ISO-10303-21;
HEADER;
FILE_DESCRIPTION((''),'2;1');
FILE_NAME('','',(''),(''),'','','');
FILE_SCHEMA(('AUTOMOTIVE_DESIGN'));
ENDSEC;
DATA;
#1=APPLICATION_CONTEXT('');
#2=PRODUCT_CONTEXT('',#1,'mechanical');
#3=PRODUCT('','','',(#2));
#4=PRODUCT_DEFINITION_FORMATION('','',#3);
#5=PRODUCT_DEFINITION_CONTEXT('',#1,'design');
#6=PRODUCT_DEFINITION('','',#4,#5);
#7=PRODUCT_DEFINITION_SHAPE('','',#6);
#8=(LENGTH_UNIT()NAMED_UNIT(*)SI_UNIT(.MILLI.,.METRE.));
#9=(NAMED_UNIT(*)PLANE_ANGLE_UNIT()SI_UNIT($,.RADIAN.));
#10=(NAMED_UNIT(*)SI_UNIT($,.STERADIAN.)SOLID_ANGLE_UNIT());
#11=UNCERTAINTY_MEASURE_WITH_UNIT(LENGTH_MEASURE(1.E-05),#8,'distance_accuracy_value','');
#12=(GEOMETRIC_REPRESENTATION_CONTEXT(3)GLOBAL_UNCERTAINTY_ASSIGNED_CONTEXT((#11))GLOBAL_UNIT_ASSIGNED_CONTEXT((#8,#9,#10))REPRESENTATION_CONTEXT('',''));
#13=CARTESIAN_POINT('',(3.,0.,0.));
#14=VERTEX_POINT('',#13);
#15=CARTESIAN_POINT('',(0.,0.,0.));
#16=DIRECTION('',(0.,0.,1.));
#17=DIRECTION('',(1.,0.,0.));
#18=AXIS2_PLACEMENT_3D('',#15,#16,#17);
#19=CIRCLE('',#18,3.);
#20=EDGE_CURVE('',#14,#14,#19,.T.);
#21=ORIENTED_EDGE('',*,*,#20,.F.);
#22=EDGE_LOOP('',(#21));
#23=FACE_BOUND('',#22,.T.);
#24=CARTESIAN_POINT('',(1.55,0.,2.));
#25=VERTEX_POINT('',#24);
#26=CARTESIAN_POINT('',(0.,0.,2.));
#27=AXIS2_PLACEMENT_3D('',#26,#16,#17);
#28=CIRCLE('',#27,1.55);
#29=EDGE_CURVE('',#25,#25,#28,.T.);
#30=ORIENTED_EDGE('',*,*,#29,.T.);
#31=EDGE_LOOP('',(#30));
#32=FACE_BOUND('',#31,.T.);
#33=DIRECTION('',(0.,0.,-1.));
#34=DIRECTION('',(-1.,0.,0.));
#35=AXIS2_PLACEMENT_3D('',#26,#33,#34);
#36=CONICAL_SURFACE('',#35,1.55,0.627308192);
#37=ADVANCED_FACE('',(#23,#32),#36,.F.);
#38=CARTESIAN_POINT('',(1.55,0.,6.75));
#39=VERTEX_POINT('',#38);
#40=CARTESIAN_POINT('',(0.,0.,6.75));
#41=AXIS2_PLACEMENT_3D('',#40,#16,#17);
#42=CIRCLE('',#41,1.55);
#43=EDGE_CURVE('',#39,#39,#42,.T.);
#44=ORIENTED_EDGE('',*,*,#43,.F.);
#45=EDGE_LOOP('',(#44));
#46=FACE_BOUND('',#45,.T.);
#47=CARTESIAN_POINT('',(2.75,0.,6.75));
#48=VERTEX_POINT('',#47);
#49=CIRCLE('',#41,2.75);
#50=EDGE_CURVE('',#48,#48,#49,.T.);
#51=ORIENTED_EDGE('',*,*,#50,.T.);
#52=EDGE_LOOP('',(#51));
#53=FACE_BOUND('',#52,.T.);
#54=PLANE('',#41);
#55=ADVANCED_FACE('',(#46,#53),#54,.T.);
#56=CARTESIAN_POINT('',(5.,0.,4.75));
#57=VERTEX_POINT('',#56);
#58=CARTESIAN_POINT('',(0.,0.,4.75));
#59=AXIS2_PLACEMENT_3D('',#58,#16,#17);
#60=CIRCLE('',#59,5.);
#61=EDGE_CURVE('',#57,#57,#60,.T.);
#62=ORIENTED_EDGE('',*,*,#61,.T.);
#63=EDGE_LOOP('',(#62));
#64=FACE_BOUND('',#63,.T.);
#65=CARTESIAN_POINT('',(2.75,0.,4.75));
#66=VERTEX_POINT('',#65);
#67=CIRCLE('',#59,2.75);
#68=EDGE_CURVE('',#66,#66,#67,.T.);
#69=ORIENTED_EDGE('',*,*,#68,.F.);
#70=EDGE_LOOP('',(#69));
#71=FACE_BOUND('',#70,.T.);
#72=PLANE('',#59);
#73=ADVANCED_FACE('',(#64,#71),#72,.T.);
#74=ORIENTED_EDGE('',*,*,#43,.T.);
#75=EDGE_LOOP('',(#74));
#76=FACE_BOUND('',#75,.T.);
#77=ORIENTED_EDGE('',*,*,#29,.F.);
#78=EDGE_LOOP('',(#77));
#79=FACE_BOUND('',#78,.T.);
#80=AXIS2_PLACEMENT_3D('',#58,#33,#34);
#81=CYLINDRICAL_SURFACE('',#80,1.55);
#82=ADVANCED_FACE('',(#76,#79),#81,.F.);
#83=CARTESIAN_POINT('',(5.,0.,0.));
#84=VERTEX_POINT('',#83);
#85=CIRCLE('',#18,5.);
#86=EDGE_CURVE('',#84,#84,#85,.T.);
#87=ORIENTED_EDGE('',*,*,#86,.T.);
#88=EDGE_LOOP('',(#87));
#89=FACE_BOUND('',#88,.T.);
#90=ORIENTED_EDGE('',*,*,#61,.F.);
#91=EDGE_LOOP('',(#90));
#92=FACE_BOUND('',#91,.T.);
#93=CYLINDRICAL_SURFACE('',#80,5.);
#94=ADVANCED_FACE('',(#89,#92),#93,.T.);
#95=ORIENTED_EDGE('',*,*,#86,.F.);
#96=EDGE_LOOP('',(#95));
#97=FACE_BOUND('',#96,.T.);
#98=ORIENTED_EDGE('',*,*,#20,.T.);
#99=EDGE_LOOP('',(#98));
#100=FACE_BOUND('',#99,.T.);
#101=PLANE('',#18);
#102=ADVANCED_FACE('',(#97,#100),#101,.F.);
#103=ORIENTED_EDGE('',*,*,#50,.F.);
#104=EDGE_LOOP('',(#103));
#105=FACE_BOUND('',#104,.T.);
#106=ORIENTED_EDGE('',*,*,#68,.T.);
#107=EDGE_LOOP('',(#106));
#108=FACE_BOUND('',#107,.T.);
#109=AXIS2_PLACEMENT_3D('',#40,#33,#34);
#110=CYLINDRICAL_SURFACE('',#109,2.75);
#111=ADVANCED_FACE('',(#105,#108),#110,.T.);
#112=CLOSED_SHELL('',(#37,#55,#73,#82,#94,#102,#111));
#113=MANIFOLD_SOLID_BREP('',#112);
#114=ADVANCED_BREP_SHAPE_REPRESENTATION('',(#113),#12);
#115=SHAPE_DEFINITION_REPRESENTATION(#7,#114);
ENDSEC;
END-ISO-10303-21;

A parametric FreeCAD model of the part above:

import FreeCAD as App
import Part
import Sketcher
Q = App.Units.Quantity


def add_polygon(sketch, points):
    """Adds a closed chain of lines whose ends are joined by coincident constraints."""
    first, n = sketch.GeometryCount, len(points)
    for a, b in zip(points, points[1:] + points[:1]):
        sketch.addGeometry(Part.LineSegment(App.Vector(*a, 0), App.Vector(*b, 0)), False)
    for i in range(n):
        sketch.addConstraint(Sketcher.Constraint("Coincident", first + i, 2, first + (i + 1) % n, 1))

doc = App.newDocument("Part")
body = doc.addObject("PartDesign::Body", "Body")

# Sketch on XY plane
sketch1 = body.newObject("Sketcher::SketchObject", "Sketch")
sketch1.AttachmentSupport = (doc.getObject("XY_Plane"), [""])
sketch1.MapMode = "FlatFace"
sketch1.addGeometry([
    Part.Circle(App.Vector(0, 0, 0), App.Vector(0, 0, 1), 5),
    Part.Circle(App.Vector(0, 0, 0), App.Vector(0, 0, 1), 1.6),
], False)
sketch1.addConstraint([
    Sketcher.Constraint("Coincident", 0, 3, -1, 1),
    Sketcher.Constraint("Coincident", 1, 3, -1, 1),
    Sketcher.Constraint("Diameter", 0, Q("10 mm")),
    Sketcher.Constraint("Diameter", 1, Q("3.1 mm")),
])
pad1 = body.newObject("PartDesign::Pad", "Pad")
pad1.Profile = sketch1
pad1.Length = 4.75

# Sketch on XY plane
sketch2 = body.newObject("Sketcher::SketchObject", "Sketch001")
sketch2.AttachmentSupport = (doc.getObject("XY_Plane"), [""])
sketch2.MapMode = "FlatFace"
sketch2.AttachmentOffset = App.Placement(App.Vector(0, 0, 4.75), App.Rotation())
sketch2.addGeometry([
    Part.Circle(App.Vector(0, 0, 0), App.Vector(0, 0, 1), 2.8),
    Part.Circle(App.Vector(0, 0, 0), App.Vector(0, 0, 1), 1.6),
], False)
sketch2.addConstraint([
    Sketcher.Constraint("Coincident", 0, 3, -1, 1),
    Sketcher.Constraint("Coincident", 1, 3, -1, 1),
    Sketcher.Constraint("Diameter", 0, Q("5.5 mm")),
    Sketcher.Constraint("Diameter", 1, Q("3.1 mm")),
])
pad2 = body.newObject("PartDesign::Pad", "Pad001")
pad2.Profile = sketch2
pad2.Length = 2

# Sketch on XZ plane
sketch3 = body.newObject("Sketcher::SketchObject", "Sketch002")
sketch3.AttachmentSupport = (doc.getObject("XZ_Plane"), [""])
sketch3.MapMode = "FlatFace"
add_polygon(sketch3, [(1.6, 2), (3, 0), (0, 0), (0, 2)])  # lines 0-3
sketch3.addConstraint([
    Sketcher.Constraint("Horizontal", 1),
    Sketcher.Constraint("Vertical", 2),
    Sketcher.Constraint("Horizontal", 3),
    Sketcher.Constraint("Coincident", 1, 2, -1, 1),
    Sketcher.Constraint("DistanceX", 1, 2, 1, 1, Q("3 mm")),
    Sketcher.Constraint("DistanceY", 2, 1, 2, 2, Q("2 mm")),
    Sketcher.Constraint("DistanceX", 3, 1, 3, 2, Q("1.55 mm")),
])
groove = body.newObject("PartDesign::Groove", "Groove")
groove.Profile = sketch3
groove.ReferenceAxis = (sketch3, ["V_Axis"])
groove.Angle = 360

doc.recompute()
